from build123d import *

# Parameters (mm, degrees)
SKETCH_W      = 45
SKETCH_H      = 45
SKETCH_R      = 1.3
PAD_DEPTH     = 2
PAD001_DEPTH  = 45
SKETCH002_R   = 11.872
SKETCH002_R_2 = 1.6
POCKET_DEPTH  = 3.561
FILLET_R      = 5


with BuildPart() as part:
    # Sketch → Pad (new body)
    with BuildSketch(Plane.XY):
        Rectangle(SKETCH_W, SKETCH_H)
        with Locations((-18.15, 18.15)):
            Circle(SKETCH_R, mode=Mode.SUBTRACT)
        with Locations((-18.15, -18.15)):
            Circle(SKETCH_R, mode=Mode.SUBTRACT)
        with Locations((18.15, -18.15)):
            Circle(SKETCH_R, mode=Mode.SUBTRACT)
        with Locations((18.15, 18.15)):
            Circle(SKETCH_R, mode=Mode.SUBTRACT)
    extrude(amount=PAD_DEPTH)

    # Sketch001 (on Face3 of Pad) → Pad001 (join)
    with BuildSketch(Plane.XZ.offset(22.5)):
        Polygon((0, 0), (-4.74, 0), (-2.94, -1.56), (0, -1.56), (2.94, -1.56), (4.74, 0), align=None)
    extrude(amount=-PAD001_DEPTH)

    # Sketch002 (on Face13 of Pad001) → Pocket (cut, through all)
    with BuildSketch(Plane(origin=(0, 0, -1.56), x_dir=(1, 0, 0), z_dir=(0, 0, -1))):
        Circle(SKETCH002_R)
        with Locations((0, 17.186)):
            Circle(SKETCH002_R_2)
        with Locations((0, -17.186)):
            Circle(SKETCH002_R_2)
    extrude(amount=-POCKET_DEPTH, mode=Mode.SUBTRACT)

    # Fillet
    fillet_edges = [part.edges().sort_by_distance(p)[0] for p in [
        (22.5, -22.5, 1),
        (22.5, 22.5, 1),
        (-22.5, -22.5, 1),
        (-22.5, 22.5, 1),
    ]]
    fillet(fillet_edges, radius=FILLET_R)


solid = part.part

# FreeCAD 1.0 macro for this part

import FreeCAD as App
import Part
import Sketcher
Q = App.Units.Quantity


def edges_at(feature, points):
    """Names of the edges that pass closest to the given points."""
    edges = feature.Shape.Edges
    near = lambda p: min(range(len(edges)), key=lambda i: edges[i].distToShape(Part.Vertex(*p))[0])
    return sorted({f"Edge{near(p) + 1}" for p in points})


def add_polygon(sketch, points):
    """Adds a closed chain of lines whose ends are joined by coincident constraints."""
    first, n = sketch.GeometryCount, len(points)
    for a, b in zip(points, points[1:] + points[:1]):
        sketch.addGeometry(Part.LineSegment(App.Vector(*a, 0), App.Vector(*b, 0)), False)
    for i in range(n):
        sketch.addConstraint(Sketcher.Constraint("Coincident", first + i, 2, first + (i + 1) % n, 1))

doc = App.newDocument("Part")
body = doc.addObject("PartDesign::Body", "Body")

sketch1 = doc.addObject("Sketcher::SketchObject", "Sketch")
body.addObject(sketch1)
sketch1.AttachmentSupport = (doc.XY_Plane, [""])
sketch1.MapMode = "FlatFace"
add_polygon(sketch1, [(-22.5, 22.5), (-22.5, -22.5), (22.5, -22.5), (22.5, 22.5)])
sketch1.addGeometry(Part.Circle(App.Vector(-18.15, -18.15, 0), App.Vector(0, 0, 1), 1.3), False)
sketch1.addGeometry(Part.Circle(App.Vector(18.15, -18.15, 0), App.Vector(0, 0, 1), 1.3), False)
sketch1.addGeometry(Part.Circle(App.Vector(-18.15, 18.15, 0), App.Vector(0, 0, 1), 1.3), False)
sketch1.addGeometry(Part.Circle(App.Vector(18.15, 18.15, 0), App.Vector(0, 0, 1), 1.3), False)
sketch1.addConstraint([
    Sketcher.Constraint("Vertical", 0),
    Sketcher.Constraint("Horizontal", 1),
    Sketcher.Constraint("Vertical", 2),
    Sketcher.Constraint("Horizontal", 3),
    Sketcher.Constraint("Equal", 4, 5),
    Sketcher.Constraint("Equal", 5, 6),
    Sketcher.Constraint("Equal", 6, 7),
    Sketcher.Constraint("Symmetric", 5, 3, 6, 3, -1, 1),
    Sketcher.Constraint("Symmetric", 4, 3, 7, 3, -1, 1),
    Sketcher.Constraint("Symmetric", 0, 2, 2, 2, -1, 1),
    Sketcher.Constraint("Symmetric", 4, 3, 5, 3, -2),
    Sketcher.Constraint("Equal", 3, 0),
    Sketcher.Constraint("Diameter", 4, Q("2.6 mm")),
    Sketcher.Constraint("DistanceX", 1, 1, 1, 2, Q("45 mm")),
    Sketcher.Constraint("DistanceX", 4, 3, 5, 3, Q("36.3 mm")),
    Sketcher.Constraint("DistanceY", 4, 3, 6, 3, Q("36.3 mm")),
])
pad1 = doc.addObject("PartDesign::Pad", "Pad")
body.addObject(pad1)
pad1.Profile = sketch1
pad1.Length = 2

sketch2 = doc.addObject("Sketcher::SketchObject", "Sketch001")
body.addObject(sketch2)
sketch2.AttachmentSupport = (doc.XZ_Plane, [""])
sketch2.MapMode = "FlatFace"
sketch2.AttachmentOffset = App.Placement(App.Vector(0, 0, 22.5), App.Rotation())
add_polygon(sketch2, [(-4.74, 0), (-2.94, -1.56), (2.94, -1.56), (4.74, 0)])
sketch2.addConstraint([
    Sketcher.Constraint("Horizontal", 1),
    Sketcher.Constraint("Horizontal", 3),
    Sketcher.Constraint("Symmetric", 2, 2, 3, 2, -1, 1),
    Sketcher.Constraint("Equal", 0, 2),
    Sketcher.Constraint("DistanceX", 1, 1, 1, 2, Q("5.88 mm")),
    Sketcher.Constraint("DistanceX", 3, 2, 3, 1, Q("9.48 mm")),
    Sketcher.Constraint("DistanceY", 0, 2, -1, 1, Q("1.56 mm")),
])
pad2 = doc.addObject("PartDesign::Pad", "Pad001")
body.addObject(pad2)
pad2.Profile = sketch2
pad2.Length = 45
pad2.Reversed = True

sketch3 = doc.addObject("Sketcher::SketchObject", "Sketch002")
body.addObject(sketch3)
sketch3.AttachmentSupport = (doc.XY_Plane, [""])
sketch3.MapMode = "FlatFace"
sketch3.AttachmentOffset = App.Placement(App.Vector(0, 0, -1.56), App.Rotation())
sketch3.addGeometry([
    Part.Circle(App.Vector(0, 0, 0), App.Vector(0, 0, 1), 11.872),
    Part.Circle(App.Vector(0, -17.186, 0), App.Vector(0, 0, 1), 1.6),
    Part.Circle(App.Vector(0, 17.186, 0), App.Vector(0, 0, 1), 1.6),
], False)
sketch3.addConstraint([
    Sketcher.Constraint("Coincident", 0, 3, -1, 1),
    Sketcher.Constraint("Equal", 1, 2),
    Sketcher.Constraint("Symmetric", 1, 3, 2, 3, -1, 1),
    Sketcher.Constraint("PointOnObject", 1, 3, -2),
    Sketcher.Constraint("Diameter", 1, Q("3.2 mm")),
    Sketcher.Constraint("Diameter", 0, Q("23.744 mm")),
    Sketcher.Constraint("DistanceY", 1, 3, -1, 1, Q("17.186 mm")),
])
pocket1 = doc.addObject("PartDesign::Pocket", "Pocket")
body.addObject(pocket1)
pocket1.Profile = sketch3
pocket1.Type = "ThroughAll"
pocket1.Reversed = True
doc.recompute()

fillet = doc.addObject("PartDesign::Fillet", "Fillet")
body.addObject(fillet)
fillet.Base = (pocket1, edges_at(pocket1, [
    (22.5, -22.5, 1),
    (22.5, 22.5, 1),
    (-22.5, -22.5, 1),
    (-22.5, 22.5, 1),
]))
fillet.Radius = 5

doc.recompute()
